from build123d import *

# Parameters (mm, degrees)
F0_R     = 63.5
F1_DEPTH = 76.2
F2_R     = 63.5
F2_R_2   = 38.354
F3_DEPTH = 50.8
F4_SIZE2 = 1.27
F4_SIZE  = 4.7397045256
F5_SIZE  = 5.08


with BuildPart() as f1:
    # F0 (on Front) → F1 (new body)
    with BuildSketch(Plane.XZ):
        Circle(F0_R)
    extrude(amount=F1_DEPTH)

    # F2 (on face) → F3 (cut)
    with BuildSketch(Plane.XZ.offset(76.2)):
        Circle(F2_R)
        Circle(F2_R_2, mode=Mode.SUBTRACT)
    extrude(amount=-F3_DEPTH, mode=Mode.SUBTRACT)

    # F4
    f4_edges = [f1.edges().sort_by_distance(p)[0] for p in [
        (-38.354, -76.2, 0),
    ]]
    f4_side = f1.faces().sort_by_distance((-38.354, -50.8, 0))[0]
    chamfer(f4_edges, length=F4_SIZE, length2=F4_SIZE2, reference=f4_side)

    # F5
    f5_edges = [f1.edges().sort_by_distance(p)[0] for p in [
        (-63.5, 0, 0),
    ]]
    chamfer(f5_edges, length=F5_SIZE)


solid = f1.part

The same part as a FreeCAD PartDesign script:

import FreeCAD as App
import Part
import Sketcher
Q = App.Units.Quantity


def edges_at(feature, points):
    """Names of the edges that pass closest to the given points."""
    edges = feature.Shape.Edges
    near = lambda p: min(range(len(edges)), key=lambda i: edges[i].distToShape(Part.Vertex(*p))[0])
    return sorted({f"Edge{near(p) + 1}" for p in points})

doc = App.newDocument("Part")
body = doc.addObject("PartDesign::Body", "Body")

sketch1 = body.newObject("Sketcher::SketchObject", "Sketch")
sketch1.AttachmentSupport = (doc.getObject("XZ_Plane"), [""])
sketch1.MapMode = "FlatFace"
sketch1.addGeometry(Part.Circle(App.Vector(0, 0, 0), App.Vector(0, 0, 1), 64), False)
sketch1.addConstraint([
    Sketcher.Constraint("Coincident", 0, 3, -1, 1),
    Sketcher.Constraint("Diameter", 0, Q("5 in")),
])
pad1 = body.newObject("PartDesign::Pad", "Pad")
pad1.Profile = sketch1
pad1.Length = Q("3 in")

sketch2 = body.newObject("Sketcher::SketchObject", "Sketch001")
sketch2.AttachmentSupport = (doc.getObject("XZ_Plane"), [""])
sketch2.MapMode = "FlatFace"
sketch2.AttachmentOffset = App.Placement(App.Vector(0, 0, 3 * 25.4), App.Rotation())
sketch2.addGeometry([
    Part.Circle(App.Vector(0, 0, 0), App.Vector(0, 0, 1), 64),
    Part.Circle(App.Vector(0, 0, 0), App.Vector(0, 0, 1), 38),
], False)
sketch2.addConstraint([
    Sketcher.Constraint("Coincident", 0, 3, -1, 1),
    Sketcher.Constraint("Coincident", 1, 3, -1, 1),
    Sketcher.Constraint("Diameter", 0, Q("5 in")),
    Sketcher.Constraint("Diameter", 1, Q("3.02 in")),
])
pocket1 = body.newObject("PartDesign::Pocket", "Pocket")
pocket1.Profile = sketch2
pocket1.Length = Q("2 in")
doc.recompute()

chamfer = body.newObject("PartDesign::Chamfer", "Chamfer")
chamfer.Base = (pocket1, edges_at(pocket1, [(-38.354, -76.2, 0)]))
chamfer.ChamferType = "Two distances"
chamfer.Size = 4.739705
chamfer.Size2 = Q("0.05 in")
doc.recompute()

chamfer2 = body.newObject("PartDesign::Chamfer", "Chamfer001")
chamfer2.Base = (chamfer, edges_at(chamfer, [(-63.5, 0, 0)]))
chamfer2.Size = Q("0.2 in")

doc.recompute()
